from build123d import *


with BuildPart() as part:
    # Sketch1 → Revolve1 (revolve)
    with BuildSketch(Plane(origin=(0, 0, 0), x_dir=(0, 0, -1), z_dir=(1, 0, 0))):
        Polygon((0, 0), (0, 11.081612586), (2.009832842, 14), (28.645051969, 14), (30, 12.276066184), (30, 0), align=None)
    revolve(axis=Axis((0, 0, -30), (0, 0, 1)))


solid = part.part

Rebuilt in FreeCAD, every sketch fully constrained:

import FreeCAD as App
import Part
import Sketcher

V = App.Vector

doc = App.newDocument("Part")
body = doc.addObject("PartDesign::Body", "Body")

sketch1 = body.newObject("Sketcher::SketchObject", "Sketch")
sketch1.AttachmentSupport = (doc.getObject("YZ_Plane"), [""])
sketch1.MapMode = "FlatFace"
sketch1.addGeometry([
    Part.LineSegment(V(11.1, 0, 0), V(0, 0, 0)),
    Part.LineSegment(V(0, 0, 0), V(0, -30, 0)),
    Part.LineSegment(V(0, -30, 0), V(12.3, -30, 0)),
    Part.LineSegment(V(12.3, -30, 0), V(14, -28.6, 0)),
    Part.LineSegment(V(14, -28.6, 0), V(14, -2, 0)),
    Part.LineSegment(V(14, -2, 0), V(11.1, 0, 0)),
], False)
sketch1.addConstraint([
    Sketcher.Constraint("Coincident", 0, 2, 1, 1),
    Sketcher.Constraint("Coincident", 1, 2, 2, 1),
    Sketcher.Constraint("Coincident", 2, 2, 3, 1),
    Sketcher.Constraint("Coincident", 3, 2, 4, 1),
    Sketcher.Constraint("Coincident", 4, 2, 5, 1),
    Sketcher.Constraint("Coincident", 5, 2, 0, 1),
    Sketcher.Constraint("Horizontal", 0),
    Sketcher.Constraint("Vertical", 1),
    Sketcher.Constraint("Horizontal", 2),
    Sketcher.Constraint("Vertical", 4),
    Sketcher.Constraint("Coincident", 0, 2, -1, 1),
    Sketcher.Constraint("DistanceY", 1, 2, 1, 1, 30.0),
    Sketcher.Constraint("DistanceX", -1, 1, 3, 2, 14.0),
    Sketcher.Constraint("DistanceY", 4, 1, 4, 2, 26.635219),
    Sketcher.Constraint("DistanceX", 0, 2, 0, 1, 11.081613),
    Sketcher.Constraint("DistanceX", 2, 1, 2, 2, 12.276066),
    Sketcher.Constraint("DistanceY", 3, 2, -1, 1, 28.645052),
])
revolution = body.newObject("PartDesign::Revolution", "Revolution")
revolution.Profile = sketch1
revolution.ReferenceAxis = (sketch1, ["V_Axis"])
revolution.Angle = 360

doc.recompute()
